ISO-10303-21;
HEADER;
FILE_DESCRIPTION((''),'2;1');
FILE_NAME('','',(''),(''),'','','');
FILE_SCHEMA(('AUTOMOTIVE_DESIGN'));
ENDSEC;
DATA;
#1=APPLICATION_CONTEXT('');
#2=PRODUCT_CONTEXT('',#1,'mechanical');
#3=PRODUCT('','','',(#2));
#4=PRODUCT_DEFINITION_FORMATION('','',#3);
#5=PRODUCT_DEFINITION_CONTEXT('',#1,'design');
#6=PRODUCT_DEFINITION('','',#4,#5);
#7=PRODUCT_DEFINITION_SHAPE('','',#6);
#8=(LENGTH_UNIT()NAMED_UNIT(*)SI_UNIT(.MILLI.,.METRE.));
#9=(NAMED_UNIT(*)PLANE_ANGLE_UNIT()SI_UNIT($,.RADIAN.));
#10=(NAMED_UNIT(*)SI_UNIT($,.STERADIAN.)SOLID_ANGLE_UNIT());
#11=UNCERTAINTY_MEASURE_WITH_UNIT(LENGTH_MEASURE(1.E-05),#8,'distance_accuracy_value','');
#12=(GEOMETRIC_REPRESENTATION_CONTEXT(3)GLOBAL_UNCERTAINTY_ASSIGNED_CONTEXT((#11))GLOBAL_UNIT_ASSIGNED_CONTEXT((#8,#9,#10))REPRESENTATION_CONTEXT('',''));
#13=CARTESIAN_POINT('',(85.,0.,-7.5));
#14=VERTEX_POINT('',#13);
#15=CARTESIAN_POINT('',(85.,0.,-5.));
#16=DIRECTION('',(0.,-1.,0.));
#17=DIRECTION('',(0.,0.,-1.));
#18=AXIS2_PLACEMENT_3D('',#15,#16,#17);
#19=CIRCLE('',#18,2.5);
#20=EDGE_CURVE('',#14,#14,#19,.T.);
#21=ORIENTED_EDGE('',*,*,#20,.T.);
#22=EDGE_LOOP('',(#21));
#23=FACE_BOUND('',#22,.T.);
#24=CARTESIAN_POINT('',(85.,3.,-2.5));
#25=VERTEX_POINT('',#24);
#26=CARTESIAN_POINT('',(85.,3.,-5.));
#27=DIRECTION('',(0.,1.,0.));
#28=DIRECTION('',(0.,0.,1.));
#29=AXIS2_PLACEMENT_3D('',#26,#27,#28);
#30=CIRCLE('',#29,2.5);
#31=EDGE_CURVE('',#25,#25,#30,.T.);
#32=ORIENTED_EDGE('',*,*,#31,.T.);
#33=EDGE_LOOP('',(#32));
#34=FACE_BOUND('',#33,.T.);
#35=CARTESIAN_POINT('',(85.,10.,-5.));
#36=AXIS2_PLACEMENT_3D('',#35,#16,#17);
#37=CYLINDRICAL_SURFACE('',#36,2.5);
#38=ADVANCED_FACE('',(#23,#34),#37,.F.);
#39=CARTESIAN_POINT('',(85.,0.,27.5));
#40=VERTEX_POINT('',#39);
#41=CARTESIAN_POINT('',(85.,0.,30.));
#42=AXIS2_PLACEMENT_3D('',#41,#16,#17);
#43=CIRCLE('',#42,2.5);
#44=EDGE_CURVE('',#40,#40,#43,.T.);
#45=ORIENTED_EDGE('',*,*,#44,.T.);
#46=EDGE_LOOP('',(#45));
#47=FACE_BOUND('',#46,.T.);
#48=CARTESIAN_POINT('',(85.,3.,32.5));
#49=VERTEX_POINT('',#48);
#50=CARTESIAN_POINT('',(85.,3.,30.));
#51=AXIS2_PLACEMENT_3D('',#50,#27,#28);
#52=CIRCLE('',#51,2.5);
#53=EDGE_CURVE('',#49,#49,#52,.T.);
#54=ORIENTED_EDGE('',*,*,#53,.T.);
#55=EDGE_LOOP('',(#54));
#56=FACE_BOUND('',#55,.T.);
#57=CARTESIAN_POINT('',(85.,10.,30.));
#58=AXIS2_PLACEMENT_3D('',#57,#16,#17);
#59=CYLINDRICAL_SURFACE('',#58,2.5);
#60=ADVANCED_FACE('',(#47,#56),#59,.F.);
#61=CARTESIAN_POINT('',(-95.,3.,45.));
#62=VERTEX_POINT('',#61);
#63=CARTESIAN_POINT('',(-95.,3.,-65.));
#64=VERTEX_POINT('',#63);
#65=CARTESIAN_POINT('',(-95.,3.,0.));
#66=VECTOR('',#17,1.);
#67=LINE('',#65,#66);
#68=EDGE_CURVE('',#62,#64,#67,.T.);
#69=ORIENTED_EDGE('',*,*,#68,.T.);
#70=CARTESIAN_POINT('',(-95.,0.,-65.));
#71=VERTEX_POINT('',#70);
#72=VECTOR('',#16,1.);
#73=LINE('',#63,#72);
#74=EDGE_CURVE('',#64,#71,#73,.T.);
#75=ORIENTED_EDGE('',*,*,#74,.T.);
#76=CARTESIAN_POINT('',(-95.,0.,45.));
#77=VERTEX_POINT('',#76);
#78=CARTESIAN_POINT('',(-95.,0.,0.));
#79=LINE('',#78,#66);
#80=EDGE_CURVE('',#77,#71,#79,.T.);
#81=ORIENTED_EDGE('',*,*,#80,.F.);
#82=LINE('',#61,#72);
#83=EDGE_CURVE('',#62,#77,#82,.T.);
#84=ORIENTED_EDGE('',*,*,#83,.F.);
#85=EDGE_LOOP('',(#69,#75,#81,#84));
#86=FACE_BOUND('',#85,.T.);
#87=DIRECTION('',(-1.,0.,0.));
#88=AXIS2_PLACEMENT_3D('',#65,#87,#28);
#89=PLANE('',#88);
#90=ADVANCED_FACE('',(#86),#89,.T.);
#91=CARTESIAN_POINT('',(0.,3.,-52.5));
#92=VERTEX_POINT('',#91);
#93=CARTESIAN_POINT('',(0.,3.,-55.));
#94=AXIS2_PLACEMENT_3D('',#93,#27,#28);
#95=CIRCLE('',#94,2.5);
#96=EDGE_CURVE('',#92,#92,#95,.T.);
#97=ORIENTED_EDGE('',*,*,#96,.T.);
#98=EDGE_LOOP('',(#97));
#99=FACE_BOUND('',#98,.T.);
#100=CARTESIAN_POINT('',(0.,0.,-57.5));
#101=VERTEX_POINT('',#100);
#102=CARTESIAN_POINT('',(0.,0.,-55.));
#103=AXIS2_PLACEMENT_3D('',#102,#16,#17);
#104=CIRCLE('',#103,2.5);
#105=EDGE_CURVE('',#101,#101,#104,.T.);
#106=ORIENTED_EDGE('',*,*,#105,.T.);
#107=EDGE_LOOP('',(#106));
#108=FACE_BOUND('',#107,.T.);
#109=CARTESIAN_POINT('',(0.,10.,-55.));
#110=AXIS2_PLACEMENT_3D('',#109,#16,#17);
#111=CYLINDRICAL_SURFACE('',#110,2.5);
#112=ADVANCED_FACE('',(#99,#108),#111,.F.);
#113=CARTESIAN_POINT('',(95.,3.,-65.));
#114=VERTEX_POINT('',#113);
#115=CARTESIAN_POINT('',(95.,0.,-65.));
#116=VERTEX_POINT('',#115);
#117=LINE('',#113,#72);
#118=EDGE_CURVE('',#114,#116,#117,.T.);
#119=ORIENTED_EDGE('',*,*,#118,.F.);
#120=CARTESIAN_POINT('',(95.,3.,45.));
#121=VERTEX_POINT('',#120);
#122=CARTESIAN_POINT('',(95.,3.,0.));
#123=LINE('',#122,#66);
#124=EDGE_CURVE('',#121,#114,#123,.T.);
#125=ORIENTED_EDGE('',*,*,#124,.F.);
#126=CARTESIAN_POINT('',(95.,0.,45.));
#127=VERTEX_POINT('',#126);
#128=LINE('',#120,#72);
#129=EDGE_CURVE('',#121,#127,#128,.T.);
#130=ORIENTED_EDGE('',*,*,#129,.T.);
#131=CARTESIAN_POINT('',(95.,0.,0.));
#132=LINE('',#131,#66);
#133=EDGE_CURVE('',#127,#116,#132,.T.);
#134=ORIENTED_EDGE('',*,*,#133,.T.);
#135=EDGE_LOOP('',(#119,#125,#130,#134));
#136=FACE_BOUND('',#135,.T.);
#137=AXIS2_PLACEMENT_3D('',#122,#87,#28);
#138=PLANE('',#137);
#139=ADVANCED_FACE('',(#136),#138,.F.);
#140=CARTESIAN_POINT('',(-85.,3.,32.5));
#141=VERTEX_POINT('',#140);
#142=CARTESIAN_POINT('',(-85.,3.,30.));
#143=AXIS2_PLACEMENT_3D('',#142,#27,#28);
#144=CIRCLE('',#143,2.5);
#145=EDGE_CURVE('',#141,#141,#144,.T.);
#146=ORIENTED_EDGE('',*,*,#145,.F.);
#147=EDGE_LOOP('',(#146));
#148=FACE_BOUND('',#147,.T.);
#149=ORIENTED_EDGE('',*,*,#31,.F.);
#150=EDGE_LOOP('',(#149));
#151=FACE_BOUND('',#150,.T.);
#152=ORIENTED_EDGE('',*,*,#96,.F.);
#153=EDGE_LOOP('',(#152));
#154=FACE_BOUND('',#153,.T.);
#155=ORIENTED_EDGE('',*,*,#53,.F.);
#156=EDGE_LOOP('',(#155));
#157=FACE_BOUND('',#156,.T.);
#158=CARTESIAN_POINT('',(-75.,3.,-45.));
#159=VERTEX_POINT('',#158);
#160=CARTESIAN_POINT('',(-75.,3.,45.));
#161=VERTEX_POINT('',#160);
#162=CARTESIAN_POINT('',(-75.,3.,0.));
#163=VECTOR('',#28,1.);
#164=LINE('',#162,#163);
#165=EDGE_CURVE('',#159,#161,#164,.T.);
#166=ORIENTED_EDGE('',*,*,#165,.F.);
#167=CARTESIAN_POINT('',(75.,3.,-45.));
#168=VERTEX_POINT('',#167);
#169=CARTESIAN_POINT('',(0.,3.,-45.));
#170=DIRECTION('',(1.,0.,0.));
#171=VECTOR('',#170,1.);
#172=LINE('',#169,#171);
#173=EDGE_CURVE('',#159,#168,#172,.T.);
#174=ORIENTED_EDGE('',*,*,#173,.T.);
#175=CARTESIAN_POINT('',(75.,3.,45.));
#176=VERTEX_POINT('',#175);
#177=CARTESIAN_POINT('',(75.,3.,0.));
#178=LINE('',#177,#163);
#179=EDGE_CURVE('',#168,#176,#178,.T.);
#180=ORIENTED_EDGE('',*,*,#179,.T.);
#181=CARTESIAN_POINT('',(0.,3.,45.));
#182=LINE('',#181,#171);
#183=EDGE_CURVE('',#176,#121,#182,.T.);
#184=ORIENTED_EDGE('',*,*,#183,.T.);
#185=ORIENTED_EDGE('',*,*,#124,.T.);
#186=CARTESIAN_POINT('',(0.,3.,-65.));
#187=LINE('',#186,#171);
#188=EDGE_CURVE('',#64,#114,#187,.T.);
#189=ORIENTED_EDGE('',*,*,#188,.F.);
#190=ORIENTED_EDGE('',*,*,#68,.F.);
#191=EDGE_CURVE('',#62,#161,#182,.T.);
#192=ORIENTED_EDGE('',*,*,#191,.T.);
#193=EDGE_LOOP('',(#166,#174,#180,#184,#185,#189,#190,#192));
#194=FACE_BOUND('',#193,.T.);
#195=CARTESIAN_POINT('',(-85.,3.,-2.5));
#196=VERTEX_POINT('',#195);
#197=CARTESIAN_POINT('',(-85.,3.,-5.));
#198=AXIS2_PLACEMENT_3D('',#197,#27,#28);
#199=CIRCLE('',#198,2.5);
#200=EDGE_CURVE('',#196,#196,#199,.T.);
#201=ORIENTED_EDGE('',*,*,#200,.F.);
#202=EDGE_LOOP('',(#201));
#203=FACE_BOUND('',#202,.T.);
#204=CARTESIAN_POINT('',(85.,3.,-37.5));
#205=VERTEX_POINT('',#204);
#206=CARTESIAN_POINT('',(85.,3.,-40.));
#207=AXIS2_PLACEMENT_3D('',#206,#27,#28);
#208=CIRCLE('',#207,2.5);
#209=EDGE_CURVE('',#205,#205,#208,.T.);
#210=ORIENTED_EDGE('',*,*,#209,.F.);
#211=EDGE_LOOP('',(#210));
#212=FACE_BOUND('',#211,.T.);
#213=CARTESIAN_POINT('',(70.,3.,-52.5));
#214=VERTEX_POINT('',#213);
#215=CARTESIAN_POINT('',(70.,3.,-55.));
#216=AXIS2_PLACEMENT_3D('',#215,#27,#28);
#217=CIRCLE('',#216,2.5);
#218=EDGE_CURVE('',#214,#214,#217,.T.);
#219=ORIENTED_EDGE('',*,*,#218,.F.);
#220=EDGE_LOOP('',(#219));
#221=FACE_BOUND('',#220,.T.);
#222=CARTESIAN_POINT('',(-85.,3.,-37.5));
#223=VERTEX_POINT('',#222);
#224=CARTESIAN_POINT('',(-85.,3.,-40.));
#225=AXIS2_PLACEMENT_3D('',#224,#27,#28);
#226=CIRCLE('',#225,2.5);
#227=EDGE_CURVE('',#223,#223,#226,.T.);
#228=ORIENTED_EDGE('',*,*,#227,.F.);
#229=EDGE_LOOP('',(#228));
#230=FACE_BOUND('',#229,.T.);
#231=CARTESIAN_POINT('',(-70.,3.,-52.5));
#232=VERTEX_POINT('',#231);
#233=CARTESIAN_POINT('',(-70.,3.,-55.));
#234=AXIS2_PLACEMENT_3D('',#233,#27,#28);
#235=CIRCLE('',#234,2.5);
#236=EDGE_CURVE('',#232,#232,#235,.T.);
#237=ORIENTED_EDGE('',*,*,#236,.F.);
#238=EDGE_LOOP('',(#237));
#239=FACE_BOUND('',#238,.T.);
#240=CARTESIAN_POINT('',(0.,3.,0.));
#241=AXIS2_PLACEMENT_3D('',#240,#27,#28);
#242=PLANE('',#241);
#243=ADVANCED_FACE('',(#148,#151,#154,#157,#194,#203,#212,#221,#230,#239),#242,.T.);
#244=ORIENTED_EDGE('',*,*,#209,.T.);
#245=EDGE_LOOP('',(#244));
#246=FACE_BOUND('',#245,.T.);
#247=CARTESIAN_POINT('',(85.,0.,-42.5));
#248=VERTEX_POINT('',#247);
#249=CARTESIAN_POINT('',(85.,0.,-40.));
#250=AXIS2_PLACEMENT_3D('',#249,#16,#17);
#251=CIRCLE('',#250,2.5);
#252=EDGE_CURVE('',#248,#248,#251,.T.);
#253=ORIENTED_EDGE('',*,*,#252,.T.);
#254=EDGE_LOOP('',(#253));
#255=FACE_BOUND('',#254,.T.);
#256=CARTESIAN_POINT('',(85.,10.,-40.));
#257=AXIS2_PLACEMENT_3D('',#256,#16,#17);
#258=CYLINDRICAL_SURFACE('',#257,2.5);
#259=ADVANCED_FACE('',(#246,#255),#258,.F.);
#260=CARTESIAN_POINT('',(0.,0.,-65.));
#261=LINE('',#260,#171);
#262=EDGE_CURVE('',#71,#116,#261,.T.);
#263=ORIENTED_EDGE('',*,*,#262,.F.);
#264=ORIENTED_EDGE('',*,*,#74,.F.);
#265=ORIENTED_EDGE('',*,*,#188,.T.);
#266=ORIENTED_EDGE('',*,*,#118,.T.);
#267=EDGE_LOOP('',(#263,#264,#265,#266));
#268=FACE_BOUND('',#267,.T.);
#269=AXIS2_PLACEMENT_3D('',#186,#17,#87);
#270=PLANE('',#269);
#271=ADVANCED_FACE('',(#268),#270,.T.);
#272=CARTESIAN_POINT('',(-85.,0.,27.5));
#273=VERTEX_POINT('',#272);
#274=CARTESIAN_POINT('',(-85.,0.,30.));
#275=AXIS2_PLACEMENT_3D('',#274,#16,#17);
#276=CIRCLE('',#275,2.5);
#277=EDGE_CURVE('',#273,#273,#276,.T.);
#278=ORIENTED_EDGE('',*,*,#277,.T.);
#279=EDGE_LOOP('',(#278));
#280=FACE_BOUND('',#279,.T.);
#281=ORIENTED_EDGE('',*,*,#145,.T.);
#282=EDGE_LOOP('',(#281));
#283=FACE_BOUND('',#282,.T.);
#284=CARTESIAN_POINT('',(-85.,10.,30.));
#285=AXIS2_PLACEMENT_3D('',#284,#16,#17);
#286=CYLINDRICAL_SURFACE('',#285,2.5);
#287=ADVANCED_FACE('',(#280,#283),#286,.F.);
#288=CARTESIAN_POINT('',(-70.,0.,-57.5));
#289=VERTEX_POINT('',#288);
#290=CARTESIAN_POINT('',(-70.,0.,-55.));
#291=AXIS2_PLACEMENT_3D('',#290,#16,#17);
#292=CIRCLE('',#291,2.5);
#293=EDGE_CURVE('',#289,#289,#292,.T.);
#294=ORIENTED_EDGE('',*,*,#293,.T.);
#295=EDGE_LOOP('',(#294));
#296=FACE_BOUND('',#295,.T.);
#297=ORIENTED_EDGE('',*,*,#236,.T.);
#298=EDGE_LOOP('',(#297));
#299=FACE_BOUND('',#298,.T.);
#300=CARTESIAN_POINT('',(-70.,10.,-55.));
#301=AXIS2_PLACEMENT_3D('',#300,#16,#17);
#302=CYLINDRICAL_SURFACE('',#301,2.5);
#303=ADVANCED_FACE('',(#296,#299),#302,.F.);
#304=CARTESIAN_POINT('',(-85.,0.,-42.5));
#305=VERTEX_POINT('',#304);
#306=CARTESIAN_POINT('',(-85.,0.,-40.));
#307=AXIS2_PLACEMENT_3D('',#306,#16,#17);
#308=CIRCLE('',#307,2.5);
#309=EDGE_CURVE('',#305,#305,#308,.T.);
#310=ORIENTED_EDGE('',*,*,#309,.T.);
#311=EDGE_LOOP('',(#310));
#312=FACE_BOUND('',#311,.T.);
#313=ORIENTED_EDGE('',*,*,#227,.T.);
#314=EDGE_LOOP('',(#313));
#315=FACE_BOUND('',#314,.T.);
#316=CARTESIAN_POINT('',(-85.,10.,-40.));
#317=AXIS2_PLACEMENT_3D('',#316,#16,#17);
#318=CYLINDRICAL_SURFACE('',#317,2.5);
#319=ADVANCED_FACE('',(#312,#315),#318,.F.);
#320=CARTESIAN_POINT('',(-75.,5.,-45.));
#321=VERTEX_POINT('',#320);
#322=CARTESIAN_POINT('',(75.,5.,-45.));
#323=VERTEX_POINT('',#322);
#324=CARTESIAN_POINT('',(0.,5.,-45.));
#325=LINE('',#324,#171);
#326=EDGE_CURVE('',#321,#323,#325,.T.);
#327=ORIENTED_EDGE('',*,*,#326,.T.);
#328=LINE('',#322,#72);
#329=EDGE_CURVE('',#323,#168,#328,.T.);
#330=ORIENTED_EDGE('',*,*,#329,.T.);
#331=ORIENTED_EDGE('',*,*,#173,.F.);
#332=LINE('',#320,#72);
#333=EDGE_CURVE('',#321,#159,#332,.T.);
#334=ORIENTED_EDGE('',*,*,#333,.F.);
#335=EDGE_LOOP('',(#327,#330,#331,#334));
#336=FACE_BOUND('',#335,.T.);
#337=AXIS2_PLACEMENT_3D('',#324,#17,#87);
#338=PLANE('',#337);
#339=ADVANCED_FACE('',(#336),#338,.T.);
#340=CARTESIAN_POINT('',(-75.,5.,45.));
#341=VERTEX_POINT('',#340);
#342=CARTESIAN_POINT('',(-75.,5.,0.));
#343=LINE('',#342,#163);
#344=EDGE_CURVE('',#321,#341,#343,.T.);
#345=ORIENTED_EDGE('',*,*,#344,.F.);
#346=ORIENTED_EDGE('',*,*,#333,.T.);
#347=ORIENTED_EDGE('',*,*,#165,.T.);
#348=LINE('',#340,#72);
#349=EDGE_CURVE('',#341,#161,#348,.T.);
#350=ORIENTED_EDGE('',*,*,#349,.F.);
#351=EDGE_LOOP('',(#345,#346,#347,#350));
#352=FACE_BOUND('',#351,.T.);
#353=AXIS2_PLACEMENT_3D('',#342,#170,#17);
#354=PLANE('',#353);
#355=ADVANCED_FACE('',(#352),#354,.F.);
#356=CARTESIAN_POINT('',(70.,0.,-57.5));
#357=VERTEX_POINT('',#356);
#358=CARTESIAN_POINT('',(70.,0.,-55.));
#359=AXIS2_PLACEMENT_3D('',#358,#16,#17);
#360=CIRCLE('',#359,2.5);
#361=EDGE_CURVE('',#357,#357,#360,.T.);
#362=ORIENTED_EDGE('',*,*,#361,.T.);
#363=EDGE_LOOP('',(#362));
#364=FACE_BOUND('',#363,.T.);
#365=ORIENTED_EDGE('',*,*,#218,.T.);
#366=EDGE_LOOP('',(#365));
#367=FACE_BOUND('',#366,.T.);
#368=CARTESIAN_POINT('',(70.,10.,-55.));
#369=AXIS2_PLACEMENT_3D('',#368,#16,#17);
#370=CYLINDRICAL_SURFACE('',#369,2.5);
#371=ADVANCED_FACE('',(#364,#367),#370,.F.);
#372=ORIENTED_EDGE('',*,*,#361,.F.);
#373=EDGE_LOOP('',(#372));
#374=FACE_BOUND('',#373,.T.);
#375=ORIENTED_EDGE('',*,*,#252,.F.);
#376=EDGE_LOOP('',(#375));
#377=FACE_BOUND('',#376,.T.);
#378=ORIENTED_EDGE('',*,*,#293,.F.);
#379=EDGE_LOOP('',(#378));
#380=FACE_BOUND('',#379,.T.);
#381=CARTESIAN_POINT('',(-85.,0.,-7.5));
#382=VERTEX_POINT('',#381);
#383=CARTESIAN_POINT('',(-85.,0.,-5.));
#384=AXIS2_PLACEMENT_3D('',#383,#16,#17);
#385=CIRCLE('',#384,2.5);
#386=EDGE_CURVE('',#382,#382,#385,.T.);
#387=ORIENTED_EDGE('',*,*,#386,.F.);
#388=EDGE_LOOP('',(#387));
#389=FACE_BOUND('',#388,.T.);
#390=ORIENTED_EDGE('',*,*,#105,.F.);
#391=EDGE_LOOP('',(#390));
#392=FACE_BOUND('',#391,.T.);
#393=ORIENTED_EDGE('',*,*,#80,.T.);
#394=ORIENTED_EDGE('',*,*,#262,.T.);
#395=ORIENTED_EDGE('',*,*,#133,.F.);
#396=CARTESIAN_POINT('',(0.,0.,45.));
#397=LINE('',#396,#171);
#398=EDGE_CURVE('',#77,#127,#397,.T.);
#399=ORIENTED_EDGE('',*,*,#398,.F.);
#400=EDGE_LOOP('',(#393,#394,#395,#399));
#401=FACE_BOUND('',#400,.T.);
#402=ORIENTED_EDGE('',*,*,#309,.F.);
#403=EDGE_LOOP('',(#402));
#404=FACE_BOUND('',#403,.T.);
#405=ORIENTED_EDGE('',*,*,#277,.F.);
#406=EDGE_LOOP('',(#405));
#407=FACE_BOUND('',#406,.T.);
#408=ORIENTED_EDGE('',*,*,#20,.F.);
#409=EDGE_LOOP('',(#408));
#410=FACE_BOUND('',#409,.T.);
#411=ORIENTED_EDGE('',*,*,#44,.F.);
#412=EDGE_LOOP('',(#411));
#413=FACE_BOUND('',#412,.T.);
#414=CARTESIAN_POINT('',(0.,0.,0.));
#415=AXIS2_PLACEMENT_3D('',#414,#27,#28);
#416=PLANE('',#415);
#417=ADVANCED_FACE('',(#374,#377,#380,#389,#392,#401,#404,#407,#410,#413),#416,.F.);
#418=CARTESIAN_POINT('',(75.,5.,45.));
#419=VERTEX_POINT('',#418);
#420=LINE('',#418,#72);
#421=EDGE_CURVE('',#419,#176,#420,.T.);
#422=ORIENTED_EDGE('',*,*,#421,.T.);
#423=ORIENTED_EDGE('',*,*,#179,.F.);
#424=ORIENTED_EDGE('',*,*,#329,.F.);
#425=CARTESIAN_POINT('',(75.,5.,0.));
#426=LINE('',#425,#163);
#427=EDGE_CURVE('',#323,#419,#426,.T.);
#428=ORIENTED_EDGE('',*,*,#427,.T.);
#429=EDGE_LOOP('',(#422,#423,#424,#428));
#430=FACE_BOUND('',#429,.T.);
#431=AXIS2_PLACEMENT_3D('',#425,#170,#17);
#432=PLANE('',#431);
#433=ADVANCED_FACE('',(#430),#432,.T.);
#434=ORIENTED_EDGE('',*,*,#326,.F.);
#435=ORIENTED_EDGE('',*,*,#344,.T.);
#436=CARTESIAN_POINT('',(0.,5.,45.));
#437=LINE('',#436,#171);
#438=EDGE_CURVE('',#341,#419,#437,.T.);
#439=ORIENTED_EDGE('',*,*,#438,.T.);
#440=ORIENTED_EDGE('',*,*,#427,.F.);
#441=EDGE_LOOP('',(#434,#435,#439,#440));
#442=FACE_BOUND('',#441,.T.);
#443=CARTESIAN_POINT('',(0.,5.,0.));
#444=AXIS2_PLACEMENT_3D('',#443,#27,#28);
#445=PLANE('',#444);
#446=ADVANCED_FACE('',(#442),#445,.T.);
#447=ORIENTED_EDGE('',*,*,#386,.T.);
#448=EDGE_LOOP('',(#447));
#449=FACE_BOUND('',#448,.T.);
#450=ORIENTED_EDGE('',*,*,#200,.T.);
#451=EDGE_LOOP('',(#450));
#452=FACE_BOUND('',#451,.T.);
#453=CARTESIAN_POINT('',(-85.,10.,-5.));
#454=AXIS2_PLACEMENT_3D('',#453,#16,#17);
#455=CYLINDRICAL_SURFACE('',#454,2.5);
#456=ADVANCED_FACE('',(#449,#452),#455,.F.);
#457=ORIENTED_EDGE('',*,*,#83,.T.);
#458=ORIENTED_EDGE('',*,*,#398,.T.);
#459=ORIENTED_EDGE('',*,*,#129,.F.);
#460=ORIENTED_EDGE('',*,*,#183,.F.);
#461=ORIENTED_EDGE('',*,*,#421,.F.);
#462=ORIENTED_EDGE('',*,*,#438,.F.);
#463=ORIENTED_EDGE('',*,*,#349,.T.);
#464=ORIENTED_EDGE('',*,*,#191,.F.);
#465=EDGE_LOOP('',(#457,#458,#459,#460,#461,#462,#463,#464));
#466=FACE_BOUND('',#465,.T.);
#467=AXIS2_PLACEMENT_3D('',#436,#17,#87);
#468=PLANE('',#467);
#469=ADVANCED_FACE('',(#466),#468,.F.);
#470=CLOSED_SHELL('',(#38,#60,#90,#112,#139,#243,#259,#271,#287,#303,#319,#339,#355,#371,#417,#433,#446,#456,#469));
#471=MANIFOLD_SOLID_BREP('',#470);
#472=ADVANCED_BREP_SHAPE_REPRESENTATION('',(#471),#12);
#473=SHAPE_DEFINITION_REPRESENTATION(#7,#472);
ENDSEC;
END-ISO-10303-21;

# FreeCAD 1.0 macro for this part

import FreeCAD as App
import Part
import Sketcher
from FreeCAD import Vector
Q = App.Units.Quantity


def add_polygon(sketch, points):
    """Adds a closed chain of lines whose ends are joined by coincident constraints."""
    first, n = sketch.GeometryCount, len(points)
    for a, b in zip(points, points[1:] + points[:1]):
        sketch.addGeometry(Part.LineSegment(App.Vector(*a, 0), App.Vector(*b, 0)), False)
    for i in range(n):
        sketch.addConstraint(Sketcher.Constraint("Coincident", first + i, 2, first + (i + 1) % n, 1))

doc = App.newDocument("Part")
body = doc.addObject("PartDesign::Body", "Body")

sketch1 = body.newObject("Sketcher::SketchObject", "Sketch")
sketch1.AttachmentSupport = (doc.getObject("XZ_Plane"), [""])
sketch1.MapMode = "FlatFace"
add_polygon(sketch1, [(-75, -45), (-75, 45), (75, 45), (75, -45)])
sketch1.addConstraint(Sketcher.Constraint("Vertical", 0))
sketch1.addConstraint(Sketcher.Constraint("Horizontal", 1))
sketch1.addConstraint(Sketcher.Constraint("Vertical", 2))
sketch1.addConstraint(Sketcher.Constraint("Horizontal", 3))
sketch1.addConstraint(Sketcher.Constraint("Symmetric", 0, 2, 2, 2, -1, 1))
sketch1.addConstraint(Sketcher.Constraint("DistanceX", 1, 1, 1, 2, Q("150 mm")))
sketch1.addConstraint(Sketcher.Constraint("DistanceY", 0, 1, 0, 2, Q("90 mm")))
pad1 = body.newObject("PartDesign::Pad", "Pad")
pad1.Profile = sketch1
pad1.Length = 5
pad1.Reversed = True

sketch2 = body.newObject("Sketcher::SketchObject", "Sketch001")
sketch2.AttachmentSupport = (doc.getObject("XZ_Plane"), [""])
sketch2.MapMode = "FlatFace"
add_polygon(sketch2, [(-75, 45), (-75, -45), (75, -45), (75, 45), (95, 45), (95, -65), (-95, -65), (-95, 45)])
sketch2.addConstraint(Sketcher.Constraint("Vertical", 0))
sketch2.addConstraint(Sketcher.Constraint("Horizontal", 1))
sketch2.addConstraint(Sketcher.Constraint("Vertical", 2))
sketch2.addConstraint(Sketcher.Constraint("Horizontal", 3))
sketch2.addConstraint(Sketcher.Constraint("Vertical", 4))
sketch2.addConstraint(Sketcher.Constraint("Horizontal", 5))
sketch2.addConstraint(Sketcher.Constraint("Vertical", 6))
sketch2.addConstraint(Sketcher.Constraint("Horizontal", 7))
sketch2.addConstraint(Sketcher.Constraint("Symmetric", 0, 2, 2, 2, -1, 1))
sketch2.addConstraint(Sketcher.Constraint("Symmetric", 3, 2, 6, 2, -2))
sketch2.addConstraint(Sketcher.Constraint("DistanceX", 1, 1, 1, 2, Q("150 mm")))
sketch2.addConstraint(Sketcher.Constraint("DistanceX", 3, 1, 3, 2, Q("20 mm")))
sketch2.addConstraint(Sketcher.Constraint("DistanceY", 0, 2, 0, 1, Q("90 mm")))
sketch2.addConstraint(Sketcher.Constraint("DistanceY", 4, 2, 4, 1, Q("110 mm")))
pad2 = body.newObject("PartDesign::Pad", "Pad001")
pad2.Profile = sketch2
pad2.Length = 3
pad2.Reversed = True

sketch3 = body.newObject("Sketcher::SketchObject", "Sketch002")
sketch3.AttachmentSupport = (doc.getObject("XZ_Plane"), [""])
sketch3.MapMode = "FlatFace"
sketch3.addGeometry(Part.Circle(Vector(85, 30, 0), Vector(0, 0, 1), 2.5), False)
sketch3.addGeometry(Part.Circle(Vector(70, -55, 0), Vector(0, 0, 1), 2.5), False)
sketch3.addGeometry(Part.Circle(Vector(-85, -40, 0), Vector(0, 0, 1), 2.5), False)
sketch3.addGeometry(Part.Circle(Vector(-85, -5, 0), Vector(0, 0, 1), 2.5), False)
sketch3.addGeometry(Part.Circle(Vector(-85, 30, 0), Vector(0, 0, 1), 2.5), False)
sketch3.addGeometry(Part.Circle(Vector(0, -55, 0), Vector(0, 0, 1), 2.5), False)
sketch3.addGeometry(Part.Circle(Vector(-70, -55, 0), Vector(0, 0, 1), 2.5), False)
sketch3.addGeometry(Part.Circle(Vector(85, -5, 0), Vector(0, 0, 1), 2.5), False)
sketch3.addGeometry(Part.Circle(Vector(85, -40, 0), Vector(0, 0, 1), 2.5), False)
sketch3.addConstraint(Sketcher.Constraint("Equal", 0, 1))
sketch3.addConstraint(Sketcher.Constraint("Equal", 1, 2))
sketch3.addConstraint(Sketcher.Constraint("Equal", 2, 3))
sketch3.addConstraint(Sketcher.Constraint("Equal", 3, 4))
sketch3.addConstraint(Sketcher.Constraint("Equal", 4, 5))
sketch3.addConstraint(Sketcher.Constraint("Equal", 5, 6))
sketch3.addConstraint(Sketcher.Constraint("Equal", 6, 7))
sketch3.addConstraint(Sketcher.Constraint("Equal", 7, 8))
sketch3.addConstraint(Sketcher.Constraint("Symmetric", 0, 3, 4, 3, -2))
sketch3.addConstraint(Sketcher.Constraint("Symmetric", 1, 3, 6, 3, -2))
sketch3.addConstraint(Sketcher.Constraint("Symmetric", 3, 3, 7, 3, -2))
sketch3.addConstraint(Sketcher.Constraint("Symmetric", 2, 3, 8, 3, -2))
sketch3.addConstraint(Sketcher.Constraint("PointOnObject", 5, 3, -2))
sketch3.addConstraint(Sketcher.Constraint("Horizontal", 1, 3, 5, 3))
sketch3.addConstraint(Sketcher.Constraint("Vertical", 2, 3, 3, 3))
sketch3.addConstraint(Sketcher.Constraint("Vertical", 3, 3, 4, 3))
sketch3.addConstraint(Sketcher.Constraint("Diameter", 0, Q("5 mm")))
sketch3.addConstraint(Sketcher.Constraint("DistanceX", -1, 1, 0, 3, Q("85 mm")))
sketch3.addConstraint(Sketcher.Constraint("DistanceY", -1, 1, 0, 3, Q("30 mm")))
sketch3.addConstraint(Sketcher.Constraint("DistanceX", -1, 1, 1, 3, Q("70 mm")))
sketch3.addConstraint(Sketcher.Constraint("DistanceY", 1, 3, -1, 1, Q("55 mm")))
sketch3.addConstraint(Sketcher.Constraint("DistanceY", 2, 3, -1, 1, Q("40 mm")))
sketch3.addConstraint(Sketcher.Constraint("DistanceY", 3, 3, -1, 1, Q("5 mm")))
pocket1 = body.newObject("PartDesign::Pocket", "Pocket")
pocket1.Profile = sketch3
pocket1.Length = 10

doc.recompute()
